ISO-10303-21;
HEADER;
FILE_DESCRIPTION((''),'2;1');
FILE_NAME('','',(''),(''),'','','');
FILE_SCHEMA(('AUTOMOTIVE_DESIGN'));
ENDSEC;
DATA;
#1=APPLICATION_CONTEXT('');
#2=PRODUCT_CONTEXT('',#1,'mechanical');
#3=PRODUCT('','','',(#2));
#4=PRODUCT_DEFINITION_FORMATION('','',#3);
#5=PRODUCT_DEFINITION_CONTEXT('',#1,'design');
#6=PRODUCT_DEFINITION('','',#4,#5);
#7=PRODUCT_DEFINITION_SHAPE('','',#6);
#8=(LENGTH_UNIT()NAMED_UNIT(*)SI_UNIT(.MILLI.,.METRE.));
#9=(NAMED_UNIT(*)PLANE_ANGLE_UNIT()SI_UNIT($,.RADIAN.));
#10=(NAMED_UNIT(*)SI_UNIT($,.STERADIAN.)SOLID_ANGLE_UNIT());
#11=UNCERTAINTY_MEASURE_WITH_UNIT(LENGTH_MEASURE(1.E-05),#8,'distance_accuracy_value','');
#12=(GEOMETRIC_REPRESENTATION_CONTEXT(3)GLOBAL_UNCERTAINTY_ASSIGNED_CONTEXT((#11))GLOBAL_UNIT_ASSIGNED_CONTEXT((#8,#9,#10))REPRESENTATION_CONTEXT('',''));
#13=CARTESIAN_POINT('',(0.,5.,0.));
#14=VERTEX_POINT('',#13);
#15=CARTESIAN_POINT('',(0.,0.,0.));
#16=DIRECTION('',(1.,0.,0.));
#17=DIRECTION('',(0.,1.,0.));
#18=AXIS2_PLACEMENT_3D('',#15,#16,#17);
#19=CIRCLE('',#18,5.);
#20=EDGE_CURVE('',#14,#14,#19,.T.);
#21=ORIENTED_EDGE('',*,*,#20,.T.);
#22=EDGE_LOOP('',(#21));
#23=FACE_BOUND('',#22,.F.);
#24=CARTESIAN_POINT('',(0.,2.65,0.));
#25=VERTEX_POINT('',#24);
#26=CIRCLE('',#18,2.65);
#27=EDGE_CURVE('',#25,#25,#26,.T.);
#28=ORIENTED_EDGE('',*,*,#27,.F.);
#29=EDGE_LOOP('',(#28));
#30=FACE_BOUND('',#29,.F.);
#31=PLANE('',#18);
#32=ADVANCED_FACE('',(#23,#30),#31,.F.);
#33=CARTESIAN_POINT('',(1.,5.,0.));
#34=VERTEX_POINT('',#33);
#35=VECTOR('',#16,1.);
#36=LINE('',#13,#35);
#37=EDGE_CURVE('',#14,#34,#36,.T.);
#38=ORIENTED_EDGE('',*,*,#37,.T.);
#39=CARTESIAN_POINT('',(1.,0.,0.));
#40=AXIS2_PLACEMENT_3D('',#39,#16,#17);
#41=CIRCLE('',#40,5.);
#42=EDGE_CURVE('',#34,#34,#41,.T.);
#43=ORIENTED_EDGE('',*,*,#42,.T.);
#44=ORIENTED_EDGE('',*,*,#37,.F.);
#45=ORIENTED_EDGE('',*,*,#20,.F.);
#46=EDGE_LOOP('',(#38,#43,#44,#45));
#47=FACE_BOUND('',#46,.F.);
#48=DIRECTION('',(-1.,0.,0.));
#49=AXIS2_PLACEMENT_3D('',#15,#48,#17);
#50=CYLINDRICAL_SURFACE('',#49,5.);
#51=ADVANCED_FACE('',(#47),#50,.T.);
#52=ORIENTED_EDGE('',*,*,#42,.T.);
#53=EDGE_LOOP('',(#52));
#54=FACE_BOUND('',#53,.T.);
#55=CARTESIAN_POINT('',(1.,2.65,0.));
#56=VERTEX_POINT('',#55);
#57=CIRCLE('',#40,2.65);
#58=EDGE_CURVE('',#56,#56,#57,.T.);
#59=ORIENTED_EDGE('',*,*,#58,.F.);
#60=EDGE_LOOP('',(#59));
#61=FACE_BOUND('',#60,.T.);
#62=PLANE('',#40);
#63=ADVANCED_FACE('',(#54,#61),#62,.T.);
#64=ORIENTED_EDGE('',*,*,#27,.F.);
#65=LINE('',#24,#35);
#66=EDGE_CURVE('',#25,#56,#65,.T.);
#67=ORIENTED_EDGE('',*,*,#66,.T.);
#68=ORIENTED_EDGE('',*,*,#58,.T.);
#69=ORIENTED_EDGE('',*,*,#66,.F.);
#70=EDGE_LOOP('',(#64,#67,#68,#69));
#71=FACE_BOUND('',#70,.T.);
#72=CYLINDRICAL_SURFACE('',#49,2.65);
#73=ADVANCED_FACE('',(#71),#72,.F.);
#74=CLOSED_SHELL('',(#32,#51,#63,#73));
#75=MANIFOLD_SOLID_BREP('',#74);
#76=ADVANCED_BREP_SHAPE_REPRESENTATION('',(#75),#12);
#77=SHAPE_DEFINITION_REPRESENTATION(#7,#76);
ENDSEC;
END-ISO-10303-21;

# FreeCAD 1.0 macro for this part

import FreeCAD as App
import Part
import Sketcher
from FreeCAD import Vector
Q = App.Units.Quantity

doc = App.newDocument("Part")
body = doc.addObject("PartDesign::Body", "Body")

# Sketch on YZ plane
sketch1 = body.newObject("Sketcher::SketchObject", "Sketch")
sketch1.AttachmentSupport = (doc.getObject("YZ_Plane"), [""])
sketch1.MapMode = "FlatFace"
sketch1.addGeometry(Part.Circle(Vector(0, 0, 0), Vector(0, 0, 1), 5), False)
sketch1.addGeometry(Part.Circle(Vector(0, 0, 0), Vector(0, 0, 1), 2.6), False)
sketch1.addConstraint(Sketcher.Constraint("Coincident", 0, 3, -1, 1))
sketch1.addConstraint(Sketcher.Constraint("Coincident", 1, 3, -1, 1))
sketch1.addConstraint(Sketcher.Constraint("Diameter", 0, Q("10 mm")))
sketch1.addConstraint(Sketcher.Constraint("Diameter", 1, Q("5.3 mm")))
pad1 = body.newObject("PartDesign::Pad", "Pad")
pad1.Profile = sketch1
pad1.Length = 1

doc.recompute()
